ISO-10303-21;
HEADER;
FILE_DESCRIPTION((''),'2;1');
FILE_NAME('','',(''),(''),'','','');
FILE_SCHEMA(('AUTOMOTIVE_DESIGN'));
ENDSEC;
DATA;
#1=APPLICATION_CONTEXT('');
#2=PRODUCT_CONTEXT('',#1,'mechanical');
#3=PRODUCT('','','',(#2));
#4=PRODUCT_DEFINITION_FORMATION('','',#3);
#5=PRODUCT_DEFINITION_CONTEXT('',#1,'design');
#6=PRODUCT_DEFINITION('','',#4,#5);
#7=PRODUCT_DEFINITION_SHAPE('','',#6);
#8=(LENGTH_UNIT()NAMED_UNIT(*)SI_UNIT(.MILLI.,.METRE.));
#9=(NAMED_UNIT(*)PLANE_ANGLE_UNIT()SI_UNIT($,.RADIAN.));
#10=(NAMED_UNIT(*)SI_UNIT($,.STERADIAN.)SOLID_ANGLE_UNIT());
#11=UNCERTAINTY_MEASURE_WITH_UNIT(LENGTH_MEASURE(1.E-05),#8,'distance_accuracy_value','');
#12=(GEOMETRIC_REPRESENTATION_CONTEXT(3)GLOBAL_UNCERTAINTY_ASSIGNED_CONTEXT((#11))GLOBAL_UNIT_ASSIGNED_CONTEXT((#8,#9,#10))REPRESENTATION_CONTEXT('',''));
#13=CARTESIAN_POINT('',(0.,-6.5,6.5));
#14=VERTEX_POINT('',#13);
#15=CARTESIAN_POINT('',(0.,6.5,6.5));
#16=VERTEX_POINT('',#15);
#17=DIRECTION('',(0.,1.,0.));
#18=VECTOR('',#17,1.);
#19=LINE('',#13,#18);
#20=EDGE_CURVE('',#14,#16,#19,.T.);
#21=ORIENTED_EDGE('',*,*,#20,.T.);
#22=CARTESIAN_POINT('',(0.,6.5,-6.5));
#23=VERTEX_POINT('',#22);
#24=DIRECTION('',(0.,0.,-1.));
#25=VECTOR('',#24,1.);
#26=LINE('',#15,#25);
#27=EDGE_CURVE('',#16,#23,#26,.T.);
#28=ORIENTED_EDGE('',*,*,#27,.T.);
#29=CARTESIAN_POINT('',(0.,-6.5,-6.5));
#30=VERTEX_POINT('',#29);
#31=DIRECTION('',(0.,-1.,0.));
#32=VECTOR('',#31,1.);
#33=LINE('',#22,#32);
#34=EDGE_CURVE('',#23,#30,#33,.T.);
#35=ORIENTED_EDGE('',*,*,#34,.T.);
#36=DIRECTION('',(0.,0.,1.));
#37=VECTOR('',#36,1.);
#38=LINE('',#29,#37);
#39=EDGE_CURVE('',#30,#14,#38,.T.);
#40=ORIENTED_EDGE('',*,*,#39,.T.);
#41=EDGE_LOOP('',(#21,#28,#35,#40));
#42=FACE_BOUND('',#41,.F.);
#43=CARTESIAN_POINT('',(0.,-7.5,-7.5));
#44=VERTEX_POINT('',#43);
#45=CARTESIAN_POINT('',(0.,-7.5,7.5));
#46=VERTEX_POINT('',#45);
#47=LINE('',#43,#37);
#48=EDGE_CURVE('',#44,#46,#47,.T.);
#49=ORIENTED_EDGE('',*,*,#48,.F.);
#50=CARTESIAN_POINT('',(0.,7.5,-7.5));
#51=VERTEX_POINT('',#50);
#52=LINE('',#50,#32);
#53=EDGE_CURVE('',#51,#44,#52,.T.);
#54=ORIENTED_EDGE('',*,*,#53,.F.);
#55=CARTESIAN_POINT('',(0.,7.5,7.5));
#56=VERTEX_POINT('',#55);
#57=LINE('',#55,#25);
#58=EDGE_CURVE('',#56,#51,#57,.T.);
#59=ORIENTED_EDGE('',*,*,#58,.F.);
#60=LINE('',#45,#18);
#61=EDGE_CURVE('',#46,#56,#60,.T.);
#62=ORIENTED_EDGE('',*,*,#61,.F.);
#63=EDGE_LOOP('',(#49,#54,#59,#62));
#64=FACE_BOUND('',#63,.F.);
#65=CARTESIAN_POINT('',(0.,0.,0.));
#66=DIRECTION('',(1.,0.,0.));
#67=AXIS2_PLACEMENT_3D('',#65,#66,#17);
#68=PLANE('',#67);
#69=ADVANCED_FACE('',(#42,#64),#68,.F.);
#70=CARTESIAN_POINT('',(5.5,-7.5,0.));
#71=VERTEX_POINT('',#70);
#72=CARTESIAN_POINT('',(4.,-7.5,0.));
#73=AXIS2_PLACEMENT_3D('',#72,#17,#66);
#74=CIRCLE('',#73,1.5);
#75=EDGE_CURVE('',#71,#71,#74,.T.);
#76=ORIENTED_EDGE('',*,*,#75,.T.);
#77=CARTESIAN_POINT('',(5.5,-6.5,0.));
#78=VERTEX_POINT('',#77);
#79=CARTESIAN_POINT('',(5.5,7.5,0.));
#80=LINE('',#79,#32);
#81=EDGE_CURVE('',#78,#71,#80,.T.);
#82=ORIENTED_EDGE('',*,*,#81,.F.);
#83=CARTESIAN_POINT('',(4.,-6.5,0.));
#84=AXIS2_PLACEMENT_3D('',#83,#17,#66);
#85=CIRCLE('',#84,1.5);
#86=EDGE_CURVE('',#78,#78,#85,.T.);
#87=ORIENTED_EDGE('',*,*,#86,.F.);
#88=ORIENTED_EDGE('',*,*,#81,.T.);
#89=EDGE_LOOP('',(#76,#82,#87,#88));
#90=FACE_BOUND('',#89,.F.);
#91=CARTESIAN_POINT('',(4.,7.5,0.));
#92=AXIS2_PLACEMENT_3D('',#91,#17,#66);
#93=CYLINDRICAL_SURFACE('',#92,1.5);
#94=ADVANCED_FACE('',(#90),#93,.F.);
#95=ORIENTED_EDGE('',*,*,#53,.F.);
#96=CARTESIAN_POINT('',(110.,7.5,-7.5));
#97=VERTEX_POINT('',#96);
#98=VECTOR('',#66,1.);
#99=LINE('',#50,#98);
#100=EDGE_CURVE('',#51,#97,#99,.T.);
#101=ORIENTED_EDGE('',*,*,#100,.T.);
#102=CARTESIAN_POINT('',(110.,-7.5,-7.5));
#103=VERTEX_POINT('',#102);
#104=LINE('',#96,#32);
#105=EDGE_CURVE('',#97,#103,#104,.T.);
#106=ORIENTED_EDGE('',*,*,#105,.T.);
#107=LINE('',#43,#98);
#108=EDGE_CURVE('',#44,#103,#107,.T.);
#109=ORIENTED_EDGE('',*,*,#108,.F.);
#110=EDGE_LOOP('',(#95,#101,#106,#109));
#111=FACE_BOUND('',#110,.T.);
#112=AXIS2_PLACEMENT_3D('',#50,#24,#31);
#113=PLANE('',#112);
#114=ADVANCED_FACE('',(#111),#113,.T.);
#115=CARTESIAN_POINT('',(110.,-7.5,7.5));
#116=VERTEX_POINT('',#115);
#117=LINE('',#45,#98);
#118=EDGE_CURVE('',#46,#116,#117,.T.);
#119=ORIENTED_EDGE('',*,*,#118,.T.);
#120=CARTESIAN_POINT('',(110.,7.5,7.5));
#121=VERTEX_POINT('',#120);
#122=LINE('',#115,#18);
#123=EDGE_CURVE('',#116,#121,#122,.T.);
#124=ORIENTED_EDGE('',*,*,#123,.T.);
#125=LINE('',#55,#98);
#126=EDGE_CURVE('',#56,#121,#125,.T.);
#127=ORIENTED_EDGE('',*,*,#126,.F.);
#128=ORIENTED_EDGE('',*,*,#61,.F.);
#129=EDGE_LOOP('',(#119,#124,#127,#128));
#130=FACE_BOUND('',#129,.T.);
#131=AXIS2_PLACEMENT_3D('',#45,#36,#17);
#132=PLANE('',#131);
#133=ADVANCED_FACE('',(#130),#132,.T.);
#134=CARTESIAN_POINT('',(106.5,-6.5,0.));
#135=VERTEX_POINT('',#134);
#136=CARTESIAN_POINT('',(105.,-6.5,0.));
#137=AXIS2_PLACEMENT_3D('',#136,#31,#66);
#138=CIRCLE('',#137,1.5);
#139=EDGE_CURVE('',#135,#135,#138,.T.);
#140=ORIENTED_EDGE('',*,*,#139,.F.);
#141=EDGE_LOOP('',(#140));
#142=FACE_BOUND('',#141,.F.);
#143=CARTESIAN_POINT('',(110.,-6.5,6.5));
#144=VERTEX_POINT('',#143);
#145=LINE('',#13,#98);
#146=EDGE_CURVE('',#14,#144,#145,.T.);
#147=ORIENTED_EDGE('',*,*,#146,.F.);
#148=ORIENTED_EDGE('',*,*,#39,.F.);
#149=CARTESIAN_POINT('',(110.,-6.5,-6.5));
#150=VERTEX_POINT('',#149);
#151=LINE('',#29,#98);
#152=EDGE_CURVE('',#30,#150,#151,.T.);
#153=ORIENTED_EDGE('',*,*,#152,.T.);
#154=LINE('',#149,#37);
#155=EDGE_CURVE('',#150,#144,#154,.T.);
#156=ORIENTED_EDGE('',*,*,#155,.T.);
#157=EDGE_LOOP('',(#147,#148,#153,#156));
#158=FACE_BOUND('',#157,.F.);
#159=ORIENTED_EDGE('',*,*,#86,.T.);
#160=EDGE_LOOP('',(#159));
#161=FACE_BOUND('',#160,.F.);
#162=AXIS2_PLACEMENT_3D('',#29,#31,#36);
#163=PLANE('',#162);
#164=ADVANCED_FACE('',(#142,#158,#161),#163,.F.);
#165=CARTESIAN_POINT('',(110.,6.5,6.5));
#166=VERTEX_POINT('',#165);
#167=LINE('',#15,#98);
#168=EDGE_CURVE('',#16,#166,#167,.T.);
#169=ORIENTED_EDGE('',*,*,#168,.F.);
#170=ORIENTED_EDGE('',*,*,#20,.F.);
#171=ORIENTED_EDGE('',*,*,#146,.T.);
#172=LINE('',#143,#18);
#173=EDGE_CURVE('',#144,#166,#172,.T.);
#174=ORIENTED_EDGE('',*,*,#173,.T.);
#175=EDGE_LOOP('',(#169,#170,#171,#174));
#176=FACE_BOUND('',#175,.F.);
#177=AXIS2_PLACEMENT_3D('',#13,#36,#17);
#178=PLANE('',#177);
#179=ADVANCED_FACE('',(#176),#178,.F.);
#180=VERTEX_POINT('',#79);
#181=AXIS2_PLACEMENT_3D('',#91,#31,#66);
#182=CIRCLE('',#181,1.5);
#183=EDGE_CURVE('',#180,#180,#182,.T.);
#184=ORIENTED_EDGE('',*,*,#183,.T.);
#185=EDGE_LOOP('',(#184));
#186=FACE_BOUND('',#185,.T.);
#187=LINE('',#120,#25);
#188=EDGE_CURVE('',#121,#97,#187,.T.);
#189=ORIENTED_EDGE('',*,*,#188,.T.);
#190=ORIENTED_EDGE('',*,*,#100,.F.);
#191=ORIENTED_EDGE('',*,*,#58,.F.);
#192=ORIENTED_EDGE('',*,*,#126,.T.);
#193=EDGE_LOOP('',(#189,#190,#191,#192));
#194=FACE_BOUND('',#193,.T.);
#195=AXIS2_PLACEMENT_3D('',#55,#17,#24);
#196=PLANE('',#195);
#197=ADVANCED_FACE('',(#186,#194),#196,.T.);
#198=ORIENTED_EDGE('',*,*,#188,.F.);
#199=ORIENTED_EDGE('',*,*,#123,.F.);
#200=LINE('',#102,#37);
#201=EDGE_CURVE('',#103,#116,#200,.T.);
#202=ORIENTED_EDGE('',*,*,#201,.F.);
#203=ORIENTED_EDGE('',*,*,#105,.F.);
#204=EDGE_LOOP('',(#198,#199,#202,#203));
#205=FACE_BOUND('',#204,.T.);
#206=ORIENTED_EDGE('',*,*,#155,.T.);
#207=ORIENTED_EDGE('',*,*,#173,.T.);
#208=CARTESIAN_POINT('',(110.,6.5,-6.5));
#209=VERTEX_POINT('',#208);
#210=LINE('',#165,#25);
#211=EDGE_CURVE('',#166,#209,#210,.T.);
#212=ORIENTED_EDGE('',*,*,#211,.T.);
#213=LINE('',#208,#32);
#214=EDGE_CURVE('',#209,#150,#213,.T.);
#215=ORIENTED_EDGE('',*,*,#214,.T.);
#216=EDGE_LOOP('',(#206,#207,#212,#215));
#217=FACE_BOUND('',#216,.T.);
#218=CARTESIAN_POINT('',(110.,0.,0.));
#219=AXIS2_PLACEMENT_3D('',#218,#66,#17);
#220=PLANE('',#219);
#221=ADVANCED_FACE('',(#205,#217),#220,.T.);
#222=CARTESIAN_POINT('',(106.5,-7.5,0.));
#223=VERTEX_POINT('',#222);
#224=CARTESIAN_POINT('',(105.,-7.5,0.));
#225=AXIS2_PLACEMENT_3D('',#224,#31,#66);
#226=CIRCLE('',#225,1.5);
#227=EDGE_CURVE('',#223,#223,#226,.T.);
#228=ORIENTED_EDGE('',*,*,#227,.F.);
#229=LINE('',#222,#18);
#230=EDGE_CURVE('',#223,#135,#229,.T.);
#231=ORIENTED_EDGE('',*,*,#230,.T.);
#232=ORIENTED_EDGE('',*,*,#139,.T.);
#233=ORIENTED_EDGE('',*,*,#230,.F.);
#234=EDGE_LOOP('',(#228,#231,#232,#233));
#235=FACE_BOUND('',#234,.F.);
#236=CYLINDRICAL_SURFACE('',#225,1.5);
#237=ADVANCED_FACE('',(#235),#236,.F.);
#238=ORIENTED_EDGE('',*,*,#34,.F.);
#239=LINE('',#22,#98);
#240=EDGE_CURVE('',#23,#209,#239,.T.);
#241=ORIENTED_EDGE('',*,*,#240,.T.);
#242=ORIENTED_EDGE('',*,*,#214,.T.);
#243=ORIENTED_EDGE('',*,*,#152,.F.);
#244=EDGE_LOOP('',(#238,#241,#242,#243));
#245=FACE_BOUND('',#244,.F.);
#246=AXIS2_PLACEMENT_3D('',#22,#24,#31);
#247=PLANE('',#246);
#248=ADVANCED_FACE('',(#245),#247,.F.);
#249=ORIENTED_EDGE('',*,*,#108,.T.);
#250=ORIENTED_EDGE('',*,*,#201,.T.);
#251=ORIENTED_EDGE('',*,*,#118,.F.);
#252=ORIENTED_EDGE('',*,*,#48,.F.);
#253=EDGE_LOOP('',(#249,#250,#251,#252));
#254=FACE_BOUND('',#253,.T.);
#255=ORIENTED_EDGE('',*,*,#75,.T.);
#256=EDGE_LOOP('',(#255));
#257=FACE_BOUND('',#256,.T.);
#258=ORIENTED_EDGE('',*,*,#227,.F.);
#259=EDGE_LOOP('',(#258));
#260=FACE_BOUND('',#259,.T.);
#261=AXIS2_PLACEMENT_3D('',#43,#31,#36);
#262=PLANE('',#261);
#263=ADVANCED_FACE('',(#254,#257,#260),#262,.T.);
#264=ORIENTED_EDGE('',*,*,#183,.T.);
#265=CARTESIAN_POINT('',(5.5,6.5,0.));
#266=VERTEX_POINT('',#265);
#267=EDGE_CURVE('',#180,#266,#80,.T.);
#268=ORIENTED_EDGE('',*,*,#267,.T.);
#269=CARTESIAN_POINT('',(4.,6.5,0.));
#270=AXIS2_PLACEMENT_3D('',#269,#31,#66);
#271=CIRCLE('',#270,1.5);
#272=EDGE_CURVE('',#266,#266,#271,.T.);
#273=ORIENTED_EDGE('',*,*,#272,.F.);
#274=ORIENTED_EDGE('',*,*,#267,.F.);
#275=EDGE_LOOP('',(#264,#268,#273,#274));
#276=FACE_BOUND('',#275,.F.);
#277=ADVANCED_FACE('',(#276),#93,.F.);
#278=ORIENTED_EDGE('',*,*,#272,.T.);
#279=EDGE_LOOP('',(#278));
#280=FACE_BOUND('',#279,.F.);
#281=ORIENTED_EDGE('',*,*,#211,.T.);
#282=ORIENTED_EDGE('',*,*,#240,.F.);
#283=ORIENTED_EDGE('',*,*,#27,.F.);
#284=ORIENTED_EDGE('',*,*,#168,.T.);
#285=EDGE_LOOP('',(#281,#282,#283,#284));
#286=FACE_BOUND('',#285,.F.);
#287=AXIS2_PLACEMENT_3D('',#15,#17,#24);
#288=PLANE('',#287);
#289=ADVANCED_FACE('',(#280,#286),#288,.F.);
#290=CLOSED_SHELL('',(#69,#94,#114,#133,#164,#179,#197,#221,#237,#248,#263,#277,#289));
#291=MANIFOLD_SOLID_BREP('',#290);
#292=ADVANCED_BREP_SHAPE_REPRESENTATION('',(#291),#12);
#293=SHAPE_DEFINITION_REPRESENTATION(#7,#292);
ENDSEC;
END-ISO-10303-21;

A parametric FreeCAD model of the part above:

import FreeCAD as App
import Part
import Sketcher
Q = App.Units.Quantity

doc = App.newDocument("Part")
body = doc.addObject("PartDesign::Body", "Body")

# Sketch on YZ plane
sketch1 = doc.addObject("Sketcher::SketchObject", "Sketch")
body.addObject(sketch1)
sketch1.AttachmentSupport = (doc.YZ_Plane, [""])
sketch1.MapMode = "FlatFace"
sketch1.addGeometry([
    Part.LineSegment(App.Vector(8, 8, 0), App.Vector(-8, 8, 0)),  # 0
    Part.LineSegment(App.Vector(-8, 8, 0), App.Vector(-8, -8, 0)),  # 1
    Part.LineSegment(App.Vector(-8, -8, 0), App.Vector(8, -8, 0)),  # 2
    Part.LineSegment(App.Vector(8, -8, 0), App.Vector(8, 8, 0)),  # 3
    Part.LineSegment(App.Vector(-6, -6, 0), App.Vector(-6, 6, 0)),  # 4
    Part.LineSegment(App.Vector(-6, 6, 0), App.Vector(6, 6, 0)),  # 5
    Part.LineSegment(App.Vector(6, 6, 0), App.Vector(6, -6, 0)),  # 6
    Part.LineSegment(App.Vector(6, -6, 0), App.Vector(-6, -6, 0)),  # 7
], False)
sketch1.addConstraint([
    Sketcher.Constraint("Coincident", 0, 2, 1, 1),
    Sketcher.Constraint("Coincident", 1, 2, 2, 1),
    Sketcher.Constraint("Coincident", 2, 2, 3, 1),
    Sketcher.Constraint("Coincident", 3, 2, 0, 1),
    Sketcher.Constraint("Coincident", 4, 2, 5, 1),
    Sketcher.Constraint("Coincident", 5, 2, 6, 1),
    Sketcher.Constraint("Coincident", 6, 2, 7, 1),
    Sketcher.Constraint("Coincident", 7, 2, 4, 1),
    Sketcher.Constraint("Horizontal", 0),
    Sketcher.Constraint("Vertical", 1),
    Sketcher.Constraint("Horizontal", 2),
    Sketcher.Constraint("Vertical", 3),
    Sketcher.Constraint("Vertical", 4),
    Sketcher.Constraint("Horizontal", 5),
    Sketcher.Constraint("Vertical", 6),
    Sketcher.Constraint("Horizontal", 7),
    Sketcher.Constraint("Symmetric", 0, 2, 2, 2, -1, 1),
    Sketcher.Constraint("Symmetric", 4, 2, 6, 2, -1, 1),
    Sketcher.Constraint("Equal", 2, 1),
    Sketcher.Constraint("Equal", 7, 4),
    Sketcher.Constraint("DistanceX", 0, 2, 0, 1, Q("15 mm")),
    Sketcher.Constraint("DistanceX", 5, 1, 5, 2, Q("13 mm")),
])
pad1 = doc.addObject("PartDesign::Pad", "Pad")
body.addObject(pad1)
pad1.Profile = sketch1
pad1.Length = 110

# Sketch on XZ plane
sketch2 = doc.addObject("Sketcher::SketchObject", "Sketch001")
body.addObject(sketch2)
sketch2.AttachmentSupport = (doc.XZ_Plane, [""])
sketch2.MapMode = "FlatFace"
sketch2.AttachmentOffset = App.Placement(App.Vector(0, 0, -7.5), App.Rotation())
sketch2.addGeometry(Part.Circle(App.Vector(4, 0, 0), App.Vector(0, 0, 1), 1.5), False)
sketch2.addConstraint([
    Sketcher.Constraint("PointOnObject", 0, 3, -1),
    Sketcher.Constraint("Diameter", 0, Q("3 mm")),
    Sketcher.Constraint("DistanceX", -1, 1, 0, 3, Q("4 mm")),
])
pocket1 = doc.addObject("PartDesign::Pocket", "Pocket")
body.addObject(pocket1)
pocket1.Profile = sketch2
pocket1.Type = "ThroughAll"
pocket1.Reversed = True

# Sketch on XZ plane
sketch3 = doc.addObject("Sketcher::SketchObject", "Sketch002")
body.addObject(sketch3)
sketch3.AttachmentSupport = (doc.XZ_Plane, [""])
sketch3.MapMode = "FlatFace"
sketch3.AttachmentOffset = App.Placement(App.Vector(0, 0, 7.5), App.Rotation())
sketch3.addGeometry(Part.Circle(App.Vector(105, 0, 0), App.Vector(0, 0, 1), 1.5), False)
sketch3.addConstraint([
    Sketcher.Constraint("PointOnObject", 0, 3, -1),
    Sketcher.Constraint("Diameter", 0, Q("3 mm")),
    Sketcher.Constraint("DistanceX", -1, 1, 0, 3, Q("105 mm")),
])
pocket2 = doc.addObject("PartDesign::Pocket", "Pocket001")
body.addObject(pocket2)
pocket2.Profile = sketch3
pocket2.Type = "UpToFirst"

doc.recompute()
